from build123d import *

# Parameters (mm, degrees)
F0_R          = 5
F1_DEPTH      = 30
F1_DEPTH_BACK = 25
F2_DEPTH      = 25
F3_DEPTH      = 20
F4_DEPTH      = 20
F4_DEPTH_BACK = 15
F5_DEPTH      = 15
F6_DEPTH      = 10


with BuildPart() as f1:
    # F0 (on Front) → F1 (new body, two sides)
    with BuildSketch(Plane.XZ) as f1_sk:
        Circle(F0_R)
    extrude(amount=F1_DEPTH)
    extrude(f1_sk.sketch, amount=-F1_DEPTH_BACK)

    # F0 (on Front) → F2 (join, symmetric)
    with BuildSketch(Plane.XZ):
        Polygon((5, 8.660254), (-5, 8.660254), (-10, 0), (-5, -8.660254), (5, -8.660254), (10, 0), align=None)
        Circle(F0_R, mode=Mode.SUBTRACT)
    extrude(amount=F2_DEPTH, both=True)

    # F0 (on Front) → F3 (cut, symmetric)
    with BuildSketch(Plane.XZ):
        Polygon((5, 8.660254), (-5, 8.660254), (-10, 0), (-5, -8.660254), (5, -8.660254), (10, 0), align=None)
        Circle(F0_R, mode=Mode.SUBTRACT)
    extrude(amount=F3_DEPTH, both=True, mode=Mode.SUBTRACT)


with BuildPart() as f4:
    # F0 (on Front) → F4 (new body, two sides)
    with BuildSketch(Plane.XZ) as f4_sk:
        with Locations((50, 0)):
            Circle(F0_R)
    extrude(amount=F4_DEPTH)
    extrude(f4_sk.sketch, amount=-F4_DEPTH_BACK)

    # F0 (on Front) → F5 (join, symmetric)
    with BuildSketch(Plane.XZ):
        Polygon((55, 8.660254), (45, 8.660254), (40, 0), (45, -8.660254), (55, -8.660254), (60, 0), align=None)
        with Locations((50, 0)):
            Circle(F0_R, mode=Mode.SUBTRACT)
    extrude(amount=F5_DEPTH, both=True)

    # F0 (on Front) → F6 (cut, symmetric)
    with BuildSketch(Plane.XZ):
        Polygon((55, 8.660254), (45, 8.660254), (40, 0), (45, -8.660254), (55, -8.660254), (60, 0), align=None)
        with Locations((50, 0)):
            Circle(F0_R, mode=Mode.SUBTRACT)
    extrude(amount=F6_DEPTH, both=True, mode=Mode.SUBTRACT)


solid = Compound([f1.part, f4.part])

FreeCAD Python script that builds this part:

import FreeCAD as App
import Part
import Sketcher
from FreeCAD import Vector
Q = App.Units.Quantity

doc = App.newDocument("Part")
body = doc.addObject("PartDesign::Body", "Body")

sketch1 = doc.addObject("Sketcher::SketchObject", "Sketch")
body.addObject(sketch1)
sketch1.AttachmentSupport = (doc.XZ_Plane, [""])
sketch1.MapMode = "FlatFace"
sketch1.addGeometry(Part.Circle(Vector(0, 0, 0), Vector(0, 0, 1), 5), False)
sketch1.addConstraint(Sketcher.Constraint("Coincident", 0, 3, -1, 1))
sketch1.addConstraint(Sketcher.Constraint("Diameter", 0, Q("10 mm")))
pad1 = doc.addObject("PartDesign::Pad", "Pad")
body.addObject(pad1)
pad1.Profile = sketch1
pad1.Type = "TwoLengths"
pad1.Length = 30
pad1.Length2 = 25

sketch2 = doc.addObject("Sketcher::SketchObject", "Sketch001")
body.addObject(sketch2)
sketch2.AttachmentSupport = (doc.XZ_Plane, [""])
sketch2.MapMode = "FlatFace"
sketch2.addGeometry(Part.LineSegment(Vector(5, 9, 0), Vector(-5, 9, 0)), False)
sketch2.addGeometry(Part.LineSegment(Vector(-5, 9, 0), Vector(-10, 0, 0)), False)
sketch2.addGeometry(Part.LineSegment(Vector(-10, 0, 0), Vector(-5, -9, 0)), False)
sketch2.addGeometry(Part.LineSegment(Vector(-5, -9, 0), Vector(5, -9, 0)), False)
sketch2.addGeometry(Part.LineSegment(Vector(5, -9, 0), Vector(10, 0, 0)), False)
sketch2.addGeometry(Part.LineSegment(Vector(10, 0, 0), Vector(5, 9, 0)), False)
sketch2.addGeometry(Part.Circle(Vector(0, 0, 0), Vector(0, 0, 1), 5), False)
sketch2.addConstraint(Sketcher.Constraint("Coincident", 0, 2, 1, 1))
sketch2.addConstraint(Sketcher.Constraint("Coincident", 1, 2, 2, 1))
sketch2.addConstraint(Sketcher.Constraint("Coincident", 2, 2, 3, 1))
sketch2.addConstraint(Sketcher.Constraint("Coincident", 3, 2, 4, 1))
sketch2.addConstraint(Sketcher.Constraint("Coincident", 4, 2, 5, 1))
sketch2.addConstraint(Sketcher.Constraint("Coincident", 5, 2, 0, 1))
sketch2.addConstraint(Sketcher.Constraint("Horizontal", 0))
sketch2.addConstraint(Sketcher.Constraint("Horizontal", 3))
sketch2.addConstraint(Sketcher.Constraint("Coincident", 6, 3, -1, 1))
sketch2.addConstraint(Sketcher.Constraint("Symmetric", 0, 2, 3, 2, -1, 1))
sketch2.addConstraint(Sketcher.Constraint("Symmetric", 1, 2, 4, 2, -1, 1))
sketch2.addConstraint(Sketcher.Constraint("PointOnObject", 1, 2, -1))
sketch2.addConstraint(Sketcher.Constraint("Parallel", 2, 5))
sketch2.addConstraint(Sketcher.Constraint("Vertical", 0, 2, 2, 2))
sketch2.addConstraint(Sketcher.Constraint("Diameter", 6, Q("10 mm")))
sketch2.addConstraint(Sketcher.Constraint("DistanceX", 0, 2, 0, 1, Q("10 mm")))
sketch2.addConstraint(Sketcher.Constraint("Angle", 1, Q("-120 deg")))
sketch2.addConstraint(Sketcher.Constraint("Distance", 1, Q("10 mm")))
pad2 = doc.addObject("PartDesign::Pad", "Pad001")
body.addObject(pad2)
pad2.Profile = sketch2
pad2.Length = 50
pad2.Midplane = True

sketch3 = doc.addObject("Sketcher::SketchObject", "Sketch002")
body.addObject(sketch3)
sketch3.AttachmentSupport = (doc.XZ_Plane, [""])
sketch3.MapMode = "FlatFace"
sketch3.addGeometry(Part.LineSegment(Vector(5, 9, 0), Vector(-5, 9, 0)), False)
sketch3.addGeometry(Part.LineSegment(Vector(-5, 9, 0), Vector(-10, 0, 0)), False)
sketch3.addGeometry(Part.LineSegment(Vector(-10, 0, 0), Vector(-5, -9, 0)), False)
sketch3.addGeometry(Part.LineSegment(Vector(-5, -9, 0), Vector(5, -9, 0)), False)
sketch3.addGeometry(Part.LineSegment(Vector(5, -9, 0), Vector(10, 0, 0)), False)
sketch3.addGeometry(Part.LineSegment(Vector(10, 0, 0), Vector(5, 9, 0)), False)
sketch3.addGeometry(Part.Circle(Vector(0, 0, 0), Vector(0, 0, 1), 5), False)
sketch3.addConstraint(Sketcher.Constraint("Coincident", 0, 2, 1, 1))
sketch3.addConstraint(Sketcher.Constraint("Coincident", 1, 2, 2, 1))
sketch3.addConstraint(Sketcher.Constraint("Coincident", 2, 2, 3, 1))
sketch3.addConstraint(Sketcher.Constraint("Coincident", 3, 2, 4, 1))
sketch3.addConstraint(Sketcher.Constraint("Coincident", 4, 2, 5, 1))
sketch3.addConstraint(Sketcher.Constraint("Coincident", 5, 2, 0, 1))
sketch3.addConstraint(Sketcher.Constraint("Horizontal", 0))
sketch3.addConstraint(Sketcher.Constraint("Horizontal", 3))
sketch3.addConstraint(Sketcher.Constraint("Coincident", 6, 3, -1, 1))
sketch3.addConstraint(Sketcher.Constraint("Symmetric", 0, 2, 3, 2, -1, 1))
sketch3.addConstraint(Sketcher.Constraint("Symmetric", 1, 2, 4, 2, -1, 1))
sketch3.addConstraint(Sketcher.Constraint("PointOnObject", 1, 2, -1))
sketch3.addConstraint(Sketcher.Constraint("Parallel", 2, 5))
sketch3.addConstraint(Sketcher.Constraint("Vertical", 0, 2, 2, 2))
sketch3.addConstraint(Sketcher.Constraint("Diameter", 6, Q("10 mm")))
sketch3.addConstraint(Sketcher.Constraint("DistanceX", 0, 2, 0, 1, Q("10 mm")))
sketch3.addConstraint(Sketcher.Constraint("Angle", 1, Q("-120 deg")))
sketch3.addConstraint(Sketcher.Constraint("Distance", 1, Q("10 mm")))
pocket1 = doc.addObject("PartDesign::Pocket", "Pocket")
body.addObject(pocket1)
pocket1.Profile = sketch3
pocket1.Length = 40
pocket1.Midplane = True
body2 = doc.addObject("PartDesign::Body", "Body001")

sketch4 = doc.addObject("Sketcher::SketchObject", "Sketch003")
body2.addObject(sketch4)
sketch4.AttachmentSupport = (doc.getObject("XZ_Plane001"), [""])
sketch4.MapMode = "FlatFace"
sketch4.addGeometry(Part.Circle(Vector(50, 0, 0), Vector(0, 0, 1), 5), False)
sketch4.addConstraint(Sketcher.Constraint("PointOnObject", 0, 3, -1))
sketch4.addConstraint(Sketcher.Constraint("Diameter", 0, Q("10 mm")))
sketch4.addConstraint(Sketcher.Constraint("DistanceX", -1, 1, 0, 3, Q("50 mm")))
pad3 = doc.addObject("PartDesign::Pad", "Pad002")
body2.addObject(pad3)
pad3.Profile = sketch4
pad3.Type = "TwoLengths"
pad3.Length = 20
pad3.Length2 = 15

sketch5 = doc.addObject("Sketcher::SketchObject", "Sketch004")
body2.addObject(sketch5)
sketch5.AttachmentSupport = (doc.getObject("XZ_Plane001"), [""])
sketch5.MapMode = "FlatFace"
sketch5.addGeometry(Part.LineSegment(Vector(55, 9, 0), Vector(45, 9, 0)), False)
sketch5.addGeometry(Part.LineSegment(Vector(45, 9, 0), Vector(40, 0, 0)), False)
sketch5.addGeometry(Part.LineSegment(Vector(40, 0, 0), Vector(45, -9, 0)), False)
sketch5.addGeometry(Part.LineSegment(Vector(45, -9, 0), Vector(55, -9, 0)), False)
sketch5.addGeometry(Part.LineSegment(Vector(55, -9, 0), Vector(60, 0, 0)), False)
sketch5.addGeometry(Part.LineSegment(Vector(60, 0, 0), Vector(55, 9, 0)), False)
sketch5.addGeometry(Part.Circle(Vector(50, 0, 0), Vector(0, 0, 1), 5), False)
sketch5.addConstraint(Sketcher.Constraint("Coincident", 0, 2, 1, 1))
sketch5.addConstraint(Sketcher.Constraint("Coincident", 1, 2, 2, 1))
sketch5.addConstraint(Sketcher.Constraint("Coincident", 2, 2, 3, 1))
sketch5.addConstraint(Sketcher.Constraint("Coincident", 3, 2, 4, 1))
sketch5.addConstraint(Sketcher.Constraint("Coincident", 4, 2, 5, 1))
sketch5.addConstraint(Sketcher.Constraint("Coincident", 5, 2, 0, 1))
sketch5.addConstraint(Sketcher.Constraint("Horizontal", 0))
sketch5.addConstraint(Sketcher.Constraint("Horizontal", 3))
sketch5.addConstraint(Sketcher.Constraint("Symmetric", 0, 2, 2, 2, -1))
sketch5.addConstraint(Sketcher.Constraint("PointOnObject", 6, 3, -1))
sketch5.addConstraint(Sketcher.Constraint("PointOnObject", 1, 2, -1))
sketch5.addConstraint(Sketcher.Constraint("PointOnObject", 4, 2, -1))
sketch5.addConstraint(Sketcher.Constraint("Parallel", 1, 4))
sketch5.addConstraint(Sketcher.Constraint("Parallel", 2, 5))
sketch5.addConstraint(Sketcher.Constraint("Diameter", 6, Q("10 mm")))
sketch5.addConstraint(Sketcher.Constraint("DistanceX", 0, 2, 0, 1, Q("10 mm")))
sketch5.addConstraint(Sketcher.Constraint("Angle", 1, Q("-120 deg")))
sketch5.addConstraint(Sketcher.Constraint("Distance", 1, Q("10 mm")))
sketch5.addConstraint(Sketcher.Constraint("DistanceX", -1, 1, 6, 3, Q("50 mm")))
sketch5.addConstraint(Sketcher.Constraint("DistanceX", -1, 1, 0, 2, Q("45 mm")))
pad4 = doc.addObject("PartDesign::Pad", "Pad003")
body2.addObject(pad4)
pad4.Profile = sketch5
pad4.Length = 30
pad4.Midplane = True

sketch6 = doc.addObject("Sketcher::SketchObject", "Sketch005")
body2.addObject(sketch6)
sketch6.AttachmentSupport = (doc.getObject("XZ_Plane001"), [""])
sketch6.MapMode = "FlatFace"
sketch6.addGeometry(Part.LineSegment(Vector(55, 9, 0), Vector(45, 9, 0)), False)
sketch6.addGeometry(Part.LineSegment(Vector(45, 9, 0), Vector(40, 0, 0)), False)
sketch6.addGeometry(Part.LineSegment(Vector(40, 0, 0), Vector(45, -9, 0)), False)
sketch6.addGeometry(Part.LineSegment(Vector(45, -9, 0), Vector(55, -9, 0)), False)
sketch6.addGeometry(Part.LineSegment(Vector(55, -9, 0), Vector(60, 0, 0)), False)
sketch6.addGeometry(Part.LineSegment(Vector(60, 0, 0), Vector(55, 9, 0)), False)
sketch6.addGeometry(Part.Circle(Vector(50, 0, 0), Vector(0, 0, 1), 5), False)
sketch6.addConstraint(Sketcher.Constraint("Coincident", 0, 2, 1, 1))
sketch6.addConstraint(Sketcher.Constraint("Coincident", 1, 2, 2, 1))
sketch6.addConstraint(Sketcher.Constraint("Coincident", 2, 2, 3, 1))
sketch6.addConstraint(Sketcher.Constraint("Coincident", 3, 2, 4, 1))
sketch6.addConstraint(Sketcher.Constraint("Coincident", 4, 2, 5, 1))
sketch6.addConstraint(Sketcher.Constraint("Coincident", 5, 2, 0, 1))
sketch6.addConstraint(Sketcher.Constraint("Horizontal", 0))
sketch6.addConstraint(Sketcher.Constraint("Horizontal", 3))
sketch6.addConstraint(Sketcher.Constraint("Symmetric", 0, 2, 2, 2, -1))
sketch6.addConstraint(Sketcher.Constraint("PointOnObject", 6, 3, -1))
sketch6.addConstraint(Sketcher.Constraint("PointOnObject", 1, 2, -1))
sketch6.addConstraint(Sketcher.Constraint("PointOnObject", 4, 2, -1))
sketch6.addConstraint(Sketcher.Constraint("Parallel", 1, 4))
sketch6.addConstraint(Sketcher.Constraint("Parallel", 2, 5))
sketch6.addConstraint(Sketcher.Constraint("Diameter", 6, Q("10 mm")))
sketch6.addConstraint(Sketcher.Constraint("DistanceX", 0, 2, 0, 1, Q("10 mm")))
sketch6.addConstraint(Sketcher.Constraint("Angle", 1, Q("-120 deg")))
sketch6.addConstraint(Sketcher.Constraint("Distance", 1, Q("10 mm")))
sketch6.addConstraint(Sketcher.Constraint("DistanceX", -1, 1, 6, 3, Q("50 mm")))
sketch6.addConstraint(Sketcher.Constraint("DistanceX", -1, 1, 0, 2, Q("45 mm")))
pocket2 = doc.addObject("PartDesign::Pocket", "Pocket001")
body2.addObject(pocket2)
pocket2.Profile = sketch6
pocket2.Length = 20
pocket2.Midplane = True

doc.recompute()
